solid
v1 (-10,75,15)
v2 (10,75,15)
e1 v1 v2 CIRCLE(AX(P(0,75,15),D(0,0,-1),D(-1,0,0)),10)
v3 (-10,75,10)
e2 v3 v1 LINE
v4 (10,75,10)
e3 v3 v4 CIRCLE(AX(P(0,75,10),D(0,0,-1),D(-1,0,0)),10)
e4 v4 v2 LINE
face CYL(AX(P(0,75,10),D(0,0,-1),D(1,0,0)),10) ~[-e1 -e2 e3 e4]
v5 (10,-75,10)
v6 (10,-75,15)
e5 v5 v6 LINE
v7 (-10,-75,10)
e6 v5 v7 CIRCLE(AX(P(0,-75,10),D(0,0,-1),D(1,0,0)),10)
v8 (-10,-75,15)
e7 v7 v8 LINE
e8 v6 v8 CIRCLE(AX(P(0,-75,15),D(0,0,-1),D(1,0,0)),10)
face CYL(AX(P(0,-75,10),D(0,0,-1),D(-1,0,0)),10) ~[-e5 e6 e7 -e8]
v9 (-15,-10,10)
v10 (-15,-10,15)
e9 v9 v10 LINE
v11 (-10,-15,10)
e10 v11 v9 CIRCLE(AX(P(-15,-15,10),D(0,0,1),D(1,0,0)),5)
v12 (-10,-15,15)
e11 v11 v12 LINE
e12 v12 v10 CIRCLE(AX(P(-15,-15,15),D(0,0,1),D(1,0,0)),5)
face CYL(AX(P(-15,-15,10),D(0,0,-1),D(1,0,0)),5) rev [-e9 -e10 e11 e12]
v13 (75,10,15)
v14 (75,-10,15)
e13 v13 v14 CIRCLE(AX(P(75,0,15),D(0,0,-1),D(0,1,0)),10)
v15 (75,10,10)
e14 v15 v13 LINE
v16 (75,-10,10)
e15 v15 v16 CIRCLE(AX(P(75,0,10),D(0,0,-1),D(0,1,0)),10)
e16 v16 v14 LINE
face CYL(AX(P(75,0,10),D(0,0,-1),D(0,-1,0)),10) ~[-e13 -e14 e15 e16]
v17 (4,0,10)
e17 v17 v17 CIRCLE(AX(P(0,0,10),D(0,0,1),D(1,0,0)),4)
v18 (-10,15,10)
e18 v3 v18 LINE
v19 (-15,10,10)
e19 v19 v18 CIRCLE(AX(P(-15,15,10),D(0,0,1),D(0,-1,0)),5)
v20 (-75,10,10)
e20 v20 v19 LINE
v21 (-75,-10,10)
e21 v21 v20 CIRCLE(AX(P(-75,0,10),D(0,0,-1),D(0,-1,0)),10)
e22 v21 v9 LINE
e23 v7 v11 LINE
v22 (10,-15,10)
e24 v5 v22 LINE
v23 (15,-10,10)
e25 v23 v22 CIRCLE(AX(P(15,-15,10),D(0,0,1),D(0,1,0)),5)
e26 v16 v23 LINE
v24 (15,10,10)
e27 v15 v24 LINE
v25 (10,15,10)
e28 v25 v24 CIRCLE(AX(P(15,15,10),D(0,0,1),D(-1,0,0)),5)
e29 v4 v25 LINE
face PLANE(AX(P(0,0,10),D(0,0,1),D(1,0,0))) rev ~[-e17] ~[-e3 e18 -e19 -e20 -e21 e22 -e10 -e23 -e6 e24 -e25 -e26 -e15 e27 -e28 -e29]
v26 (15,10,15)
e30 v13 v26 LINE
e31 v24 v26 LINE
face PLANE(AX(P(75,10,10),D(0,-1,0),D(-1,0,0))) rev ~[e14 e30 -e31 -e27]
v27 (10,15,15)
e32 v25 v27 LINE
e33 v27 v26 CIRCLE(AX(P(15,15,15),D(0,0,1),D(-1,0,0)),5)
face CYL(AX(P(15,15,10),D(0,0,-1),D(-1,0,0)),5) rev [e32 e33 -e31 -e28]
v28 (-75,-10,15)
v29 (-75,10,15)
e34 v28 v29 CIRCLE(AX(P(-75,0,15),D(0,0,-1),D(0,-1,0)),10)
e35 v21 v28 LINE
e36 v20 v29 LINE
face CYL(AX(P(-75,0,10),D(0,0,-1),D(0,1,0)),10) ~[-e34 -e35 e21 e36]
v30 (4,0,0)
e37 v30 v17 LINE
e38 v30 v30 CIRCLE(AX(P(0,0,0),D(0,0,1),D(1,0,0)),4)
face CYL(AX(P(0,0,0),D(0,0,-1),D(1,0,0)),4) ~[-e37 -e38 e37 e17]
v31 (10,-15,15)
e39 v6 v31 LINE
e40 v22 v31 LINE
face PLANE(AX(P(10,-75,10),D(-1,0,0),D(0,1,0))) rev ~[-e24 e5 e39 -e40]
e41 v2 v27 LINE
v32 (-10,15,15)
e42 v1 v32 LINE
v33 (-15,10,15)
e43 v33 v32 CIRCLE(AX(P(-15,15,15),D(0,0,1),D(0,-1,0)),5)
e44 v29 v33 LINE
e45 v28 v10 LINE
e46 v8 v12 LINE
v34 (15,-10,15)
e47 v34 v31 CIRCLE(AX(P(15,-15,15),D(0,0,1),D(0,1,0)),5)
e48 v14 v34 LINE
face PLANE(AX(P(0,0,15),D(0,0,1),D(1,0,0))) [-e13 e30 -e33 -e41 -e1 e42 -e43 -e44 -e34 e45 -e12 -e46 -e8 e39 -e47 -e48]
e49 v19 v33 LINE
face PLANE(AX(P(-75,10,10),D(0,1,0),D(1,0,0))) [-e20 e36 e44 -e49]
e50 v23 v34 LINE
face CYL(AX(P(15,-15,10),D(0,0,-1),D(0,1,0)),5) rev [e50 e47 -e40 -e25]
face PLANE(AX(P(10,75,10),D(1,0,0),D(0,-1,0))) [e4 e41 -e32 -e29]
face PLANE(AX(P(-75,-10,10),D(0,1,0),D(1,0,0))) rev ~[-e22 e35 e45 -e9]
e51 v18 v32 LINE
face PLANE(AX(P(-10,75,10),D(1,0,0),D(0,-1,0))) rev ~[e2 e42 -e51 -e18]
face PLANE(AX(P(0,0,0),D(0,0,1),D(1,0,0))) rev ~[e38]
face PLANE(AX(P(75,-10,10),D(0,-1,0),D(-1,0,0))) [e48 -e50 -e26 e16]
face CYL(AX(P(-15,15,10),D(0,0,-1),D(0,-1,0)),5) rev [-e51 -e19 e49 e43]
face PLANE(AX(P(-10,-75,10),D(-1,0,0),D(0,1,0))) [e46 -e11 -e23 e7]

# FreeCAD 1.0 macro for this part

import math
import FreeCAD as App
import Part
import Sketcher

doc = App.newDocument("Part")
body = doc.addObject("PartDesign::Body", "Body")

sketch1 = doc.addObject("Sketcher::SketchObject", "Sketch")
body.addObject(sketch1)
sketch1.AttachmentSupport = (doc.XY_Plane, [""])
sketch1.MapMode = "FlatFace"
sketch1.addGeometry(Part.Circle(App.Vector(0, 0, 0), App.Vector(0, 0, 1), 4), False)
sketch1.addConstraint([
    Sketcher.Constraint("Coincident", 0, 3, -1, 1),
    Sketcher.Constraint("Diameter", 0, 8.0),
])
pad1 = doc.addObject("PartDesign::Pad", "Pad")
body.addObject(pad1)
pad1.Profile = sketch1
pad1.Length = 10

sketch2 = doc.addObject("Sketcher::SketchObject", "Sketch001")
body.addObject(sketch2)
sketch2.AttachmentSupport = (doc.XY_Plane, [""])
sketch2.MapMode = "FlatFace"
sketch2.AttachmentOffset = App.Placement(App.Vector(0, 0, 10), App.Rotation())
sketch2.addGeometry([
    Part.ArcOfCircle(Part.Circle(App.Vector(0, 75, 0), App.Vector(0, 0, 1), 10), math.radians(0), math.radians(180)),
    Part.LineSegment(App.Vector(-10, 75, 0), App.Vector(-10, 15, 0)),
    Part.ArcOfCircle(Part.Circle(App.Vector(-15, 15, 0), App.Vector(0, 0, 1), 5), math.radians(-90), math.radians(0)),
    Part.LineSegment(App.Vector(-15, 10, 0), App.Vector(-75, 10, 0)),
    Part.ArcOfCircle(Part.Circle(App.Vector(-75, 0, 0), App.Vector(0, 0, 1), 10), math.radians(90), math.radians(270)),
    Part.LineSegment(App.Vector(-75, -10, 0), App.Vector(-15, -10, 0)),
    Part.ArcOfCircle(Part.Circle(App.Vector(-15, -15, 0), App.Vector(0, 0, 1), 5), math.radians(0), math.radians(90)),
    Part.LineSegment(App.Vector(-10, -15, 0), App.Vector(-10, -75, 0)),
    Part.ArcOfCircle(Part.Circle(App.Vector(0, -75, 0), App.Vector(0, 0, 1), 10), math.radians(180), math.radians(360)),
    Part.LineSegment(App.Vector(10, -75, 0), App.Vector(10, -15, 0)),
    Part.ArcOfCircle(Part.Circle(App.Vector(15, -15, 0), App.Vector(0, 0, 1), 5), math.radians(90), math.radians(180)),
    Part.LineSegment(App.Vector(15, -10, 0), App.Vector(75, -10, 0)),
    Part.ArcOfCircle(Part.Circle(App.Vector(75, 0, 0), App.Vector(0, 0, 1), 10), math.radians(-90), math.radians(90)),
    Part.LineSegment(App.Vector(75, 10, 0), App.Vector(15, 10, 0)),
    Part.ArcOfCircle(Part.Circle(App.Vector(15, 15, 0), App.Vector(0, 0, 1), 5), math.radians(180), math.radians(270)),
    Part.LineSegment(App.Vector(10, 15, 0), App.Vector(10, 75, 0)),
    Part.Circle(App.Vector(0, 75, 0), App.Vector(0, 0, 1), 3.05),
    Part.Circle(App.Vector(75, 0, 0), App.Vector(0, 0, 1), 3.05),
    Part.Circle(App.Vector(0, -75, 0), App.Vector(0, 0, 1), 3.05),
    Part.Circle(App.Vector(-75, 0, 0), App.Vector(0, 0, 1), 3.05),
], False)
sketch2.addConstraint([
    Sketcher.Constraint("Tangent", 0, 2, 1, 1),
    Sketcher.Constraint("Tangent", 1, 2, 2, 2),
    Sketcher.Constraint("Tangent", 2, 1, 3, 1),
    Sketcher.Constraint("Tangent", 3, 2, 4, 1),
    Sketcher.Constraint("Tangent", 4, 2, 5, 1),
    Sketcher.Constraint("Tangent", 5, 2, 6, 2),
    Sketcher.Constraint("Tangent", 6, 1, 7, 1),
    Sketcher.Constraint("Tangent", 7, 2, 8, 1),
    Sketcher.Constraint("Tangent", 8, 2, 9, 1),
    Sketcher.Constraint("Tangent", 9, 2, 10, 2),
    Sketcher.Constraint("Tangent", 10, 1, 11, 1),
    Sketcher.Constraint("Tangent", 11, 2, 12, 1),
    Sketcher.Constraint("Tangent", 12, 2, 13, 1),
    Sketcher.Constraint("Tangent", 13, 2, 14, 2),
    Sketcher.Constraint("Tangent", 14, 1, 15, 1),
    Sketcher.Constraint("Tangent", 15, 2, 0, 1),
    Sketcher.Constraint("Vertical", 1),
    Sketcher.Constraint("Horizontal", 3),
    Sketcher.Constraint("Horizontal", 5),
    Sketcher.Constraint("Vertical", 7),
    Sketcher.Constraint("Vertical", 9),
    Sketcher.Constraint("Horizontal", 11),
    Sketcher.Constraint("Horizontal", 13),
    Sketcher.Constraint("Vertical", 15),
    Sketcher.Constraint("Coincident", 16, 3, 0, 3),
    Sketcher.Constraint("Coincident", 17, 3, 12, 3),
    Sketcher.Constraint("Coincident", 18, 3, 8, 3),
    Sketcher.Constraint("Coincident", 19, 3, 4, 3),
    Sketcher.Constraint("Equal", 0, 4),
    Sketcher.Constraint("Equal", 2, 6),
    Sketcher.Constraint("Equal", 4, 8),
    Sketcher.Constraint("Equal", 6, 10),
    Sketcher.Constraint("Equal", 8, 12),
    Sketcher.Constraint("Equal", 10, 14),
    Sketcher.Constraint("Equal", 16, 17),
    Sketcher.Constraint("Equal", 17, 18),
    Sketcher.Constraint("Equal", 18, 19),
    Sketcher.Constraint("Symmetric", 0, 3, 8, 3, -1, 1),
    Sketcher.Constraint("Symmetric", 4, 3, 12, 3, -1, 1),
    Sketcher.Constraint("Symmetric", 6, 3, 10, 3, -2),
    Sketcher.Constraint("Equal", 13, 1),
    Sketcher.Constraint("Radius", 0, 10.0),
    Sketcher.Constraint("Radius", 2, 5.0),
    Sketcher.Constraint("Diameter", 16, 6.1),
    Sketcher.Constraint("DistanceY", -1, 1, 0, 3, 75.0),
])
pad2 = doc.addObject("PartDesign::Pad", "Pad001")
body.addObject(pad2)
pad2.Profile = sketch2
pad2.Length = 5

sketch3 = doc.addObject("Sketcher::SketchObject", "Sketch002")
body.addObject(sketch3)
sketch3.AttachmentSupport = (doc.XY_Plane, [""])
sketch3.MapMode = "FlatFace"
sketch3.AttachmentOffset = App.Placement(App.Vector(0, 0, 15), App.Rotation())
sketch3.addGeometry([
    Part.Circle(App.Vector(0, -75, 0), App.Vector(0, 0, 1), 3.05),
    Part.Circle(App.Vector(75, 0, 0), App.Vector(0, 0, 1), 3.05),
    Part.Circle(App.Vector(0, 75, 0), App.Vector(0, 0, 1), 3.05),
    Part.Circle(App.Vector(-75, 0, 0), App.Vector(0, 0, 1), 3.05),
], False)
sketch3.addConstraint([
    Sketcher.Constraint("Equal", 0, 1),
    Sketcher.Constraint("Equal", 1, 2),
    Sketcher.Constraint("Equal", 2, 3),
    Sketcher.Constraint("Symmetric", 0, 3, 2, 3, -1, 1),
    Sketcher.Constraint("Symmetric", 1, 3, 3, 3, -1, 1),
    Sketcher.Constraint("PointOnObject", 0, 3, -2),
    Sketcher.Constraint("PointOnObject", 1, 3, -1),
    Sketcher.Constraint("Diameter", 0, 6.1),
    Sketcher.Constraint("DistanceY", 0, 3, -1, 1, 75.0),
    Sketcher.Constraint("DistanceX", -1, 1, 1, 3, 75.0),
])
pad3 = doc.addObject("PartDesign::Pad", "Pad002")
body.addObject(pad3)
pad3.Profile = sketch3
pad3.Length = 5
pad3.Reversed = True

doc.recompute()
